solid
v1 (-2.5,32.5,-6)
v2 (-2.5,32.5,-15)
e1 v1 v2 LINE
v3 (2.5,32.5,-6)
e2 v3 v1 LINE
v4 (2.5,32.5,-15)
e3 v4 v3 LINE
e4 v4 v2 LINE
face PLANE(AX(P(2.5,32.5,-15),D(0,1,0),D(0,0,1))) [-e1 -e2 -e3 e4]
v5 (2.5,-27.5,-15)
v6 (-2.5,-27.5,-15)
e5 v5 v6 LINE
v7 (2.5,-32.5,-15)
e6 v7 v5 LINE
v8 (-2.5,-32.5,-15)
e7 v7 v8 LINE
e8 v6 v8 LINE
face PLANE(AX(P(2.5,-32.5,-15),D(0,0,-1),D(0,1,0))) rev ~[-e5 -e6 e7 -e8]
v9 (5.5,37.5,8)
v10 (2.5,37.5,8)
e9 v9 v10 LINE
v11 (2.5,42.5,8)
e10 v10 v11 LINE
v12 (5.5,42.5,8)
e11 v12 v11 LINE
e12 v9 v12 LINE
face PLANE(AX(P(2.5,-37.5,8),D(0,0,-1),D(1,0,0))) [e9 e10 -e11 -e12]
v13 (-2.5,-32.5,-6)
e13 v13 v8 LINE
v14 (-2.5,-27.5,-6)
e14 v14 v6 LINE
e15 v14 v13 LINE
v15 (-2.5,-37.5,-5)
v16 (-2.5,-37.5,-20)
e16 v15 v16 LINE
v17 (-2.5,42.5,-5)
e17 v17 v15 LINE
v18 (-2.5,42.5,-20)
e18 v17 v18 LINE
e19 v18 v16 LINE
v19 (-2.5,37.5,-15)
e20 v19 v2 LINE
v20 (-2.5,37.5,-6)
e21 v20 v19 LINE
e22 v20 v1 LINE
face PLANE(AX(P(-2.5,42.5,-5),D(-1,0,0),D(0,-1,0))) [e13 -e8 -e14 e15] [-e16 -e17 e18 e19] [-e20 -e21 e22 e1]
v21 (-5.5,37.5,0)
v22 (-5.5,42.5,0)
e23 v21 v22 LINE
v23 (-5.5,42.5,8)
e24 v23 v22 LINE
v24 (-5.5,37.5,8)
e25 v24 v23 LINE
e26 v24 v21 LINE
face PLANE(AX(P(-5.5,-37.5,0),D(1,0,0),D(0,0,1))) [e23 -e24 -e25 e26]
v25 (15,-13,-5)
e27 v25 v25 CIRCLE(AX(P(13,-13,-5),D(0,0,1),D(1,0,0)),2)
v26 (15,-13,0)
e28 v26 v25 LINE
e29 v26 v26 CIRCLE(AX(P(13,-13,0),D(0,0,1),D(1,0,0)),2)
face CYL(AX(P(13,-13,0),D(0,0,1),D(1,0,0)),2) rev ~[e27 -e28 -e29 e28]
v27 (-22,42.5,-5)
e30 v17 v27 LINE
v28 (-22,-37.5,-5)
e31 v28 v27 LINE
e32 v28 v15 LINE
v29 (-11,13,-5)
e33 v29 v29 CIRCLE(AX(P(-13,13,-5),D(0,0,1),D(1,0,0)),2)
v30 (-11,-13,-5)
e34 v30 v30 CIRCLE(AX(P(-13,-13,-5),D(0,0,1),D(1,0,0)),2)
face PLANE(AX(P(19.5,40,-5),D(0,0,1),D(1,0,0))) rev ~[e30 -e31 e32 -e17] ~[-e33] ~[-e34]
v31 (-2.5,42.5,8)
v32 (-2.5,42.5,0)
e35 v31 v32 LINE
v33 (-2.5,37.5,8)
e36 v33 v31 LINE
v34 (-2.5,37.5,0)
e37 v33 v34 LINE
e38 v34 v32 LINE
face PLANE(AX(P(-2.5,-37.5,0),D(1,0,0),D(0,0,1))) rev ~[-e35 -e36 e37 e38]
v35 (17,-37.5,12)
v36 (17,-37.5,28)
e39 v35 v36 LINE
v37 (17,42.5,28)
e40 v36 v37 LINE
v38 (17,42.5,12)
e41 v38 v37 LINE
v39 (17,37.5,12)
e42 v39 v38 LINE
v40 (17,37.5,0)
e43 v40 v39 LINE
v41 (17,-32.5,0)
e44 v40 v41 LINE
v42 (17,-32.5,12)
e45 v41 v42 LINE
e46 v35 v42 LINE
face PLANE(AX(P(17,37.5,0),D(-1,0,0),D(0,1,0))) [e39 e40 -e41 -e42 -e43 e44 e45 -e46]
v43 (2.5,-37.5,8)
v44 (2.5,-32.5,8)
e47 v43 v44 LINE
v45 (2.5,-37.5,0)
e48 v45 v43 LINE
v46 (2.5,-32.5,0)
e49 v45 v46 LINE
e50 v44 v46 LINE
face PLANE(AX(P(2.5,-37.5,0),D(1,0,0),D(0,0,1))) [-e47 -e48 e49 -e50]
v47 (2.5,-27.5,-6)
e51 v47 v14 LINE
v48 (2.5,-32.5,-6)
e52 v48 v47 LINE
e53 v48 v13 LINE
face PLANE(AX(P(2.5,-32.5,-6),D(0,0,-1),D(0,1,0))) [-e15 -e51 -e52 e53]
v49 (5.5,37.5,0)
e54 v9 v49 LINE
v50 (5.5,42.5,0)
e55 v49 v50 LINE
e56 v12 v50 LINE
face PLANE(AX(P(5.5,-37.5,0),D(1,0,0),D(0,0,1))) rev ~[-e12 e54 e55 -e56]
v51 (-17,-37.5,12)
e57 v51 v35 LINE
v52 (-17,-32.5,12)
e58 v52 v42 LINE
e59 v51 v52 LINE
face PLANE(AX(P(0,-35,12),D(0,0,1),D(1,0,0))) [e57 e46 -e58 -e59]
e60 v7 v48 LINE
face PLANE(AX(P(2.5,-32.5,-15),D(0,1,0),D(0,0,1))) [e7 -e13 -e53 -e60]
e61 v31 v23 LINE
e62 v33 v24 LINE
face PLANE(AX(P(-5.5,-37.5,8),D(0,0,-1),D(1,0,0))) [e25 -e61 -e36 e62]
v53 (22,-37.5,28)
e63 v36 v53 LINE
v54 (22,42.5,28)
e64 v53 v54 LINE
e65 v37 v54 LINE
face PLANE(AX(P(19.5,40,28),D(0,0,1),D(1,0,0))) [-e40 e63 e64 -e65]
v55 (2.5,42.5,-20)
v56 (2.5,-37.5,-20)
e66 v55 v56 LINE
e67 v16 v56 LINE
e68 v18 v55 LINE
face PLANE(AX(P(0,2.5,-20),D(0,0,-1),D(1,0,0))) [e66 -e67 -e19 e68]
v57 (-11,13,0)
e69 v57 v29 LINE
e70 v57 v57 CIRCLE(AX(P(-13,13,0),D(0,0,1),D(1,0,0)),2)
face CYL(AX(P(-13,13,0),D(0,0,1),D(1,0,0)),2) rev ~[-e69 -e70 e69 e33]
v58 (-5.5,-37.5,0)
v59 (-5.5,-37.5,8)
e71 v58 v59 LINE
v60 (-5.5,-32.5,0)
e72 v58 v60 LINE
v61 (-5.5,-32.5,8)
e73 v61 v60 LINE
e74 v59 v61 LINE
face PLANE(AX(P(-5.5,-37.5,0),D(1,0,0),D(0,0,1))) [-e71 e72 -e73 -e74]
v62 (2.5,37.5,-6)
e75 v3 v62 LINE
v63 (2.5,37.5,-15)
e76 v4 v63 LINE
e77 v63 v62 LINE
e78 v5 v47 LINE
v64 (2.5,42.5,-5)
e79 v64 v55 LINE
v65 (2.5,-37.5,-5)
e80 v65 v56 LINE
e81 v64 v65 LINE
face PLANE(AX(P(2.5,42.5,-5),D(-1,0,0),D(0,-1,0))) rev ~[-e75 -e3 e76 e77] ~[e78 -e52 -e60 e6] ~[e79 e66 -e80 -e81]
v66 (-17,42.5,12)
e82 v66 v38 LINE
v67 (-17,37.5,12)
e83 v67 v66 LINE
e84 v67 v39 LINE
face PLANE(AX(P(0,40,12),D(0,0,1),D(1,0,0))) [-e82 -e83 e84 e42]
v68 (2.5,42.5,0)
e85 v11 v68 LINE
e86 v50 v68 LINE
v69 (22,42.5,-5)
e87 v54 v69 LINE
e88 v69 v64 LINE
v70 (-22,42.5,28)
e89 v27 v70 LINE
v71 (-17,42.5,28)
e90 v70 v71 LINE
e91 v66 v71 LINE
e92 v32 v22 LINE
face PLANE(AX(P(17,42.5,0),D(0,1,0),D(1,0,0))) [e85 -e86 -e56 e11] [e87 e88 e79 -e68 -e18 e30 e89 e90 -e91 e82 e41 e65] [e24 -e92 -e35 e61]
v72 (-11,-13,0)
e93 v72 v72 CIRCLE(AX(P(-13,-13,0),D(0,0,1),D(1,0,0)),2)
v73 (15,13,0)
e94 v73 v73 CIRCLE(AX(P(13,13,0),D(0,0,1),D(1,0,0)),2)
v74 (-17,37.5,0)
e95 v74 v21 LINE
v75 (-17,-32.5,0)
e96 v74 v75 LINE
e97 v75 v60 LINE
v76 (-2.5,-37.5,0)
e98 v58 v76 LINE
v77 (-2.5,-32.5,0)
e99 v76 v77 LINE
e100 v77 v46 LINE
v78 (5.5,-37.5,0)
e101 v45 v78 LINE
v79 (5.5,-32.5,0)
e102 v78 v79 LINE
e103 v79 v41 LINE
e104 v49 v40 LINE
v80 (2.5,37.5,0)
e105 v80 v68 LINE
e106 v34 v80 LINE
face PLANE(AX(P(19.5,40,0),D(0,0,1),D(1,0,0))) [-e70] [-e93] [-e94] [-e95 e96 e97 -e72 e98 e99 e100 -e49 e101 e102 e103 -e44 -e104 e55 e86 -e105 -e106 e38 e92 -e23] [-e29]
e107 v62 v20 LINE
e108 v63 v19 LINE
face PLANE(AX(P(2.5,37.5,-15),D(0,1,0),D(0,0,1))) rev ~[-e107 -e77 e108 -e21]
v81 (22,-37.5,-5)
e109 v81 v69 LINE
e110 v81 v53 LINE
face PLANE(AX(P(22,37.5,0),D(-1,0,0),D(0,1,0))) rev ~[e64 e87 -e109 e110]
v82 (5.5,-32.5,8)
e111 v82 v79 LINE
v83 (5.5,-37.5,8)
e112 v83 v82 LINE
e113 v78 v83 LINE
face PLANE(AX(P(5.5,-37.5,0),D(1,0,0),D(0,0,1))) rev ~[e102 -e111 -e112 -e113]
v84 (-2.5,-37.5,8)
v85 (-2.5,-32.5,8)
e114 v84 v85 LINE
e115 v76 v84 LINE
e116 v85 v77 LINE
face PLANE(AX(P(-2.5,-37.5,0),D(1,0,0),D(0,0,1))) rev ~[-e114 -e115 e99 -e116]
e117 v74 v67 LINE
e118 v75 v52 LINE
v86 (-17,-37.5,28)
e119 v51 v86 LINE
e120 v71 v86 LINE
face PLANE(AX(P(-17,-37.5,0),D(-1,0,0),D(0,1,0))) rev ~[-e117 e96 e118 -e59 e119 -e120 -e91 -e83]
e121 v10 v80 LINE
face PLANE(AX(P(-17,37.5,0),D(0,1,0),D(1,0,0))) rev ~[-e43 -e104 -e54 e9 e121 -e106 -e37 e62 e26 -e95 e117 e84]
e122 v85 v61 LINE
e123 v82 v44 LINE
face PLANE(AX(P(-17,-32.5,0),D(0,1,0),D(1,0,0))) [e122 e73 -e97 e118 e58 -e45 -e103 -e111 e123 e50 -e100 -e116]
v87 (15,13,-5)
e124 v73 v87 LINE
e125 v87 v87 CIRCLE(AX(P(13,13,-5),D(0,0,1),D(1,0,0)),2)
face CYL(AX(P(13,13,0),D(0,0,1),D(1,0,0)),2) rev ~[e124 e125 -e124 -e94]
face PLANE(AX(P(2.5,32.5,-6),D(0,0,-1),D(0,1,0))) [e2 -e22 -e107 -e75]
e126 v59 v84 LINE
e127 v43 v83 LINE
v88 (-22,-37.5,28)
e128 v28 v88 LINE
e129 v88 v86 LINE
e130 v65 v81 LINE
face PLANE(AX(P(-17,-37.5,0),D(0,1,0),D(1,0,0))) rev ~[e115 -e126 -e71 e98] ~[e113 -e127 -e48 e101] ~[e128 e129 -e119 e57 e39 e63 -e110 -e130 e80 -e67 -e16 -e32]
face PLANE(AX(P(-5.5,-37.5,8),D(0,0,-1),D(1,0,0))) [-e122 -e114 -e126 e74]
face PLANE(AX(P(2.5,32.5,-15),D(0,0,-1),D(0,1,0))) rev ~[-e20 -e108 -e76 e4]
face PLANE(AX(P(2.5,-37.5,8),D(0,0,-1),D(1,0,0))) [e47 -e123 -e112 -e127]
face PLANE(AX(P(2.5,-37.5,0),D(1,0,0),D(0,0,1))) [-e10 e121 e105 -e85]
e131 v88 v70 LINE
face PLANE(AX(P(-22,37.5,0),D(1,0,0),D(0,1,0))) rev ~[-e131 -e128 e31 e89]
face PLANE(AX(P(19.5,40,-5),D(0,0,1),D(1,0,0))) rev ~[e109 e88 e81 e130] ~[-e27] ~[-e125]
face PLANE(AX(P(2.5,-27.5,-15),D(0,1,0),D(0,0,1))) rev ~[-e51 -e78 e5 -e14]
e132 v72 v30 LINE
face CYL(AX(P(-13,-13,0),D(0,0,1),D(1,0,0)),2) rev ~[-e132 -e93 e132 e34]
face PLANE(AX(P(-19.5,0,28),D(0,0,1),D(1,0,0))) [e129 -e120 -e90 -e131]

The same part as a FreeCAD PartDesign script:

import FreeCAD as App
import Part
import Sketcher

V = App.Vector

doc = App.newDocument("Part")
body = doc.addObject("PartDesign::Body", "Body")
body.AllowCompound = True

sketch1 = body.newObject("Sketcher::SketchObject", "Sketch")
sketch1.AttachmentSupport = (doc.getObject("XY_Plane"), [""])
sketch1.MapMode = "FlatFace"
sketch1.addGeometry([
    Part.LineSegment(V(-17, 37.5, 0), V(-22, 37.5, 0)),
    Part.LineSegment(V(-22, 37.5, 0), V(-22, -37.5, 0)),
    Part.LineSegment(V(-22, -37.5, 0), V(-17, -37.5, 0)),
    Part.LineSegment(V(-17, -37.5, 0), V(-17, 37.5, 0)),
    Part.LineSegment(V(22, 37.5, 0), V(17, 37.5, 0)),
    Part.LineSegment(V(17, 37.5, 0), V(17, -37.5, 0)),
    Part.LineSegment(V(17, -37.5, 0), V(22, -37.5, 0)),
    Part.LineSegment(V(22, -37.5, 0), V(22, 37.5, 0)),
], False)
sketch1.addConstraint([
    Sketcher.Constraint("Coincident", 0, 2, 1, 1),
    Sketcher.Constraint("Coincident", 1, 2, 2, 1),
    Sketcher.Constraint("Coincident", 2, 2, 3, 1),
    Sketcher.Constraint("Coincident", 3, 2, 0, 1),
    Sketcher.Constraint("Coincident", 4, 2, 5, 1),
    Sketcher.Constraint("Coincident", 5, 2, 6, 1),
    Sketcher.Constraint("Coincident", 6, 2, 7, 1),
    Sketcher.Constraint("Coincident", 7, 2, 4, 1),
    Sketcher.Constraint("Horizontal", 0),
    Sketcher.Constraint("Vertical", 1),
    Sketcher.Constraint("Horizontal", 2),
    Sketcher.Constraint("Vertical", 3),
    Sketcher.Constraint("Horizontal", 4),
    Sketcher.Constraint("Vertical", 5),
    Sketcher.Constraint("Horizontal", 6),
    Sketcher.Constraint("Vertical", 7),
    Sketcher.Constraint("Symmetric", 2, 2, 4, 2, -1, 1),
    Sketcher.Constraint("Symmetric", 0, 2, 6, 2, -1, 1),
    Sketcher.Constraint("Horizontal", 3, 2, 4, 2),
    Sketcher.Constraint("DistanceX", 0, 2, 0, 1, 5.0),
    Sketcher.Constraint("DistanceY", 1, 2, 1, 1, 75.0),
    Sketcher.Constraint("DistanceX", 0, 2, -1, 1, 22.0),
])
pad1 = body.newObject("PartDesign::Pad", "Pad")
pad1.Profile = sketch1
pad1.Length = 28

sketch2 = body.newObject("Sketcher::SketchObject", "Sketch001")
sketch2.AttachmentSupport = (doc.getObject("XY_Plane"), [""])
sketch2.MapMode = "FlatFace"
sketch2.addGeometry([
    Part.LineSegment(V(-22, 37.5, 0), V(-22, -37.5, 0)),
    Part.LineSegment(V(-22, -37.5, 0), V(22, -37.5, 0)),
    Part.LineSegment(V(22, -37.5, 0), V(22, 37.5, 0)),
    Part.LineSegment(V(22, 37.5, 0), V(-22, 37.5, 0)),
    Part.Circle(V(-13, -13, 0), V(0, 0, 1), 2),
    Part.Circle(V(13, -13, 0), V(0, 0, 1), 2),
    Part.Circle(V(-13, 13, 0), V(0, 0, 1), 2),
    Part.Circle(V(13, 13, 0), V(0, 0, 1), 2),
], False)
sketch2.addConstraint([
    Sketcher.Constraint("Coincident", 0, 2, 1, 1),
    Sketcher.Constraint("Coincident", 1, 2, 2, 1),
    Sketcher.Constraint("Coincident", 2, 2, 3, 1),
    Sketcher.Constraint("Coincident", 3, 2, 0, 1),
    Sketcher.Constraint("Vertical", 0),
    Sketcher.Constraint("Horizontal", 1),
    Sketcher.Constraint("Vertical", 2),
    Sketcher.Constraint("Horizontal", 3),
    Sketcher.Constraint("Equal", 4, 5),
    Sketcher.Constraint("Equal", 5, 6),
    Sketcher.Constraint("Equal", 6, 7),
    Sketcher.Constraint("Symmetric", 5, 3, 6, 3, -1, 1),
    Sketcher.Constraint("Symmetric", 4, 3, 7, 3, -1, 1),
    Sketcher.Constraint("Symmetric", 0, 2, 2, 2, -1, 1),
    Sketcher.Constraint("Symmetric", 4, 3, 5, 3, -2),
    Sketcher.Constraint("Diameter", 4, 4.0),
    Sketcher.Constraint("DistanceX", 1, 1, 1, 2, 44.0),
    Sketcher.Constraint("DistanceY", 0, 2, 0, 1, 75.0),
    Sketcher.Constraint("DistanceX", 4, 3, -1, 1, 13.0),
    Sketcher.Constraint("DistanceY", 4, 3, -1, 1, 13.0),
])
pad2 = body.newObject("PartDesign::Pad", "Pad001")
pad2.Profile = sketch2
pad2.Length = 5
pad2.Reversed = True

sketch3 = body.newObject("Sketcher::SketchObject", "Sketch002")
sketch3.AttachmentSupport = (doc.getObject("XY_Plane"), [""])
sketch3.MapMode = "FlatFace"
sketch3.addGeometry([
    Part.LineSegment(V(-17, -32.5, 0), V(-17, -37.5, 0)),
    Part.LineSegment(V(-17, -37.5, 0), V(17, -37.5, 0)),
    Part.LineSegment(V(17, -37.5, 0), V(17, -32.5, 0)),
    Part.LineSegment(V(17, -32.5, 0), V(-17, -32.5, 0)),
], False)
sketch3.addConstraint([
    Sketcher.Constraint("Coincident", 0, 2, 1, 1),
    Sketcher.Constraint("Coincident", 1, 2, 2, 1),
    Sketcher.Constraint("Coincident", 2, 2, 3, 1),
    Sketcher.Constraint("Coincident", 3, 2, 0, 1),
    Sketcher.Constraint("Vertical", 0),
    Sketcher.Constraint("Horizontal", 1),
    Sketcher.Constraint("Vertical", 2),
    Sketcher.Constraint("Horizontal", 3),
    Sketcher.Constraint("DistanceX", 1, 1, 1, 2, 34.0),
    Sketcher.Constraint("DistanceY", 0, 2, 0, 1, 5.0),
    Sketcher.Constraint("DistanceX", 0, 2, -1, 1, 17.0),
    Sketcher.Constraint("DistanceY", 0, 2, -1, 1, 37.5),
])
pad3 = body.newObject("PartDesign::Pad", "Pad002")
pad3.Profile = sketch3
pad3.Length = 12

sketch4 = body.newObject("Sketcher::SketchObject", "Sketch003")
sketch4.AttachmentSupport = (doc.getObject("XY_Plane"), [""])
sketch4.MapMode = "FlatFace"
sketch4.addGeometry([
    Part.LineSegment(V(22, 37.5, 0), V(22, 42.5, 0)),
    Part.LineSegment(V(22, 42.5, 0), V(-22, 42.5, 0)),
    Part.LineSegment(V(-22, 42.5, 0), V(-22, 37.5, 0)),
    Part.LineSegment(V(-22, 37.5, 0), V(22, 37.5, 0)),
], False)
sketch4.addConstraint([
    Sketcher.Constraint("Coincident", 0, 2, 1, 1),
    Sketcher.Constraint("Coincident", 1, 2, 2, 1),
    Sketcher.Constraint("Coincident", 2, 2, 3, 1),
    Sketcher.Constraint("Coincident", 3, 2, 0, 1),
    Sketcher.Constraint("Vertical", 0),
    Sketcher.Constraint("Horizontal", 1),
    Sketcher.Constraint("Vertical", 2),
    Sketcher.Constraint("Horizontal", 3),
    Sketcher.Constraint("DistanceX", 1, 2, 1, 1, 44.0),
    Sketcher.Constraint("DistanceY", 0, 1, 0, 2, 5.0),
    Sketcher.Constraint("DistanceX", -1, 1, 0, 2, 22.0),
    Sketcher.Constraint("DistanceY", -1, 1, 0, 2, 42.5),
])
pad4 = body.newObject("PartDesign::Pad", "Pad003")
pad4.Profile = sketch4
pad4.Length = 5
pad4.Reversed = True

sketch5 = body.newObject("Sketcher::SketchObject", "Sketch004")
sketch5.AttachmentSupport = (doc.getObject("XY_Plane"), [""])
sketch5.MapMode = "FlatFace"
sketch5.addGeometry([
    Part.LineSegment(V(17, 42.5, 0), V(17, 37.5, 0)),
    Part.LineSegment(V(17, 37.5, 0), V(22, 37.5, 0)),
    Part.LineSegment(V(22, 37.5, 0), V(22, 42.5, 0)),
    Part.LineSegment(V(22, 42.5, 0), V(17, 42.5, 0)),
    Part.LineSegment(V(-22, 42.5, 0), V(-22, 37.5, 0)),
    Part.LineSegment(V(-22, 37.5, 0), V(-17, 37.5, 0)),
    Part.LineSegment(V(-17, 37.5, 0), V(-17, 42.5, 0)),
    Part.LineSegment(V(-17, 42.5, 0), V(-22, 42.5, 0)),
], False)
sketch5.addConstraint([
    Sketcher.Constraint("Coincident", 0, 2, 1, 1),
    Sketcher.Constraint("Coincident", 1, 2, 2, 1),
    Sketcher.Constraint("Coincident", 2, 2, 3, 1),
    Sketcher.Constraint("Coincident", 3, 2, 0, 1),
    Sketcher.Constraint("Coincident", 4, 2, 5, 1),
    Sketcher.Constraint("Coincident", 5, 2, 6, 1),
    Sketcher.Constraint("Coincident", 6, 2, 7, 1),
    Sketcher.Constraint("Coincident", 7, 2, 4, 1),
    Sketcher.Constraint("Vertical", 0),
    Sketcher.Constraint("Horizontal", 1),
    Sketcher.Constraint("Vertical", 2),
    Sketcher.Constraint("Horizontal", 3),
    Sketcher.Constraint("Vertical", 4),
    Sketcher.Constraint("Horizontal", 5),
    Sketcher.Constraint("Vertical", 6),
    Sketcher.Constraint("Horizontal", 7),
    Sketcher.Constraint("Symmetric", 1, 2, 4, 2, -2),
    Sketcher.Constraint("Symmetric", 3, 2, 6, 2, -2),
    Sketcher.Constraint("Equal", 7, 0),
    Sketcher.Constraint("DistanceX", 1, 1, 1, 2, 5.0),
    Sketcher.Constraint("DistanceX", -1, 1, 0, 2, 17.0),
    Sketcher.Constraint("DistanceY", -1, 1, 0, 2, 37.5),
])
pad5 = body.newObject("PartDesign::Pad", "Pad004")
pad5.Profile = sketch5
pad5.Length = 28

sketch6 = body.newObject("Sketcher::SketchObject", "Sketch005")
sketch6.AttachmentSupport = (doc.getObject("XY_Plane"), [""])
sketch6.MapMode = "FlatFace"
sketch6.addGeometry([
    Part.LineSegment(V(-17, 42.5, 0), V(-17, 37.5, 0)),
    Part.LineSegment(V(-17, 37.5, 0), V(17, 37.5, 0)),
    Part.LineSegment(V(17, 37.5, 0), V(17, 42.5, 0)),
    Part.LineSegment(V(17, 42.5, 0), V(-17, 42.5, 0)),
], False)
sketch6.addConstraint([
    Sketcher.Constraint("Coincident", 0, 2, 1, 1),
    Sketcher.Constraint("Coincident", 1, 2, 2, 1),
    Sketcher.Constraint("Coincident", 2, 2, 3, 1),
    Sketcher.Constraint("Coincident", 3, 2, 0, 1),
    Sketcher.Constraint("Vertical", 0),
    Sketcher.Constraint("Horizontal", 1),
    Sketcher.Constraint("Vertical", 2),
    Sketcher.Constraint("Horizontal", 3),
    Sketcher.Constraint("DistanceX", 1, 1, 1, 2, 34.0),
    Sketcher.Constraint("DistanceY", 0, 2, 0, 1, 5.0),
    Sketcher.Constraint("DistanceX", 0, 2, -1, 1, 17.0),
    Sketcher.Constraint("DistanceY", -1, 1, 0, 2, 37.5),
])
pad6 = body.newObject("PartDesign::Pad", "Pad005")
pad6.Profile = sketch6
pad6.Length = 12

sketch7 = body.newObject("Sketcher::SketchObject", "Sketch006")
sketch7.AttachmentSupport = (doc.getObject("XY_Plane"), [""])
sketch7.MapMode = "FlatFace"
sketch7.AttachmentOffset = App.Placement(V(0, 0, -5), App.Rotation())
sketch7.addGeometry([
    Part.LineSegment(V(-2.5, -37.5, 0), V(-2.5, 42.5, 0)),
    Part.LineSegment(V(-2.5, 42.5, 0), V(2.5, 42.5, 0)),
    Part.LineSegment(V(2.5, 42.5, 0), V(2.5, -37.5, 0)),
    Part.LineSegment(V(2.5, -37.5, 0), V(-2.5, -37.5, 0)),
], False)
sketch7.addConstraint([
    Sketcher.Constraint("Coincident", 0, 2, 1, 1),
    Sketcher.Constraint("Coincident", 1, 2, 2, 1),
    Sketcher.Constraint("Coincident", 2, 2, 3, 1),
    Sketcher.Constraint("Coincident", 3, 2, 0, 1),
    Sketcher.Constraint("Vertical", 0),
    Sketcher.Constraint("Horizontal", 1),
    Sketcher.Constraint("Vertical", 2),
    Sketcher.Constraint("Horizontal", 3),
    Sketcher.Constraint("DistanceX", 1, 1, 1, 2, 5.0),
    Sketcher.Constraint("DistanceY", 0, 1, 0, 2, 80.0),
    Sketcher.Constraint("DistanceX", 0, 2, -1, 1, 2.5),
    Sketcher.Constraint("DistanceY", -1, 1, 0, 2, 42.5),
])
pad7 = body.newObject("PartDesign::Pad", "Pad006")
pad7.Profile = sketch7
pad7.Length = 15
pad7.Reversed = True

sketch8 = body.newObject("Sketcher::SketchObject", "Sketch007")
sketch8.AttachmentSupport = (doc.getObject("YZ_Plane"), [""])
sketch8.MapMode = "FlatFace"
sketch8.AttachmentOffset = App.Placement(V(0, 0, 2.5), App.Rotation())
sketch8.addGeometry([
    Part.LineSegment(V(-32.5, -6, 0), V(-32.5, -15, 0)),
    Part.LineSegment(V(-32.5, -15, 0), V(-27.5, -15, 0)),
    Part.LineSegment(V(-27.5, -15, 0), V(-27.5, -6, 0)),
    Part.LineSegment(V(-27.5, -6, 0), V(-32.5, -6, 0)),
], False)
sketch8.addConstraint([
    Sketcher.Constraint("Coincident", 0, 2, 1, 1),
    Sketcher.Constraint("Coincident", 1, 2, 2, 1),
    Sketcher.Constraint("Coincident", 2, 2, 3, 1),
    Sketcher.Constraint("Coincident", 3, 2, 0, 1),
    Sketcher.Constraint("Vertical", 0),
    Sketcher.Constraint("Horizontal", 1),
    Sketcher.Constraint("Vertical", 2),
    Sketcher.Constraint("Horizontal", 3),
    Sketcher.Constraint("DistanceX", 1, 1, 1, 2, 5.0),
    Sketcher.Constraint("DistanceY", 0, 2, 0, 1, 9.0),
    Sketcher.Constraint("DistanceY", 0, 2, -1, 1, 15.0),
    Sketcher.Constraint("DistanceX", 0, 2, -1, 1, 32.5),
])
pocket1 = body.newObject("PartDesign::Pocket", "Pocket")
pocket1.Profile = sketch8
pocket1.Type = "ThroughAll"

sketch9 = body.newObject("Sketcher::SketchObject", "Sketch008")
sketch9.AttachmentSupport = (doc.getObject("XZ_Plane"), [""])
sketch9.MapMode = "FlatFace"
sketch9.AttachmentOffset = App.Placement(V(0, 0, 37.5), App.Rotation())
sketch9.addGeometry([
    Part.LineSegment(V(-5.5, 8, 0), V(-5.5, 0, 0)),
    Part.LineSegment(V(-5.5, 0, 0), V(-2.5, 0, 0)),
    Part.LineSegment(V(-2.5, 0, 0), V(-2.5, 8, 0)),
    Part.LineSegment(V(-2.5, 8, 0), V(-5.5, 8, 0)),
    Part.LineSegment(V(2.5, 8, 0), V(2.5, 0, 0)),
    Part.LineSegment(V(2.5, 0, 0), V(5.5, 0, 0)),
    Part.LineSegment(V(5.5, 0, 0), V(5.5, 8, 0)),
    Part.LineSegment(V(5.5, 8, 0), V(2.5, 8, 0)),
], False)
sketch9.addConstraint([
    Sketcher.Constraint("Coincident", 0, 2, 1, 1),
    Sketcher.Constraint("Coincident", 1, 2, 2, 1),
    Sketcher.Constraint("Coincident", 2, 2, 3, 1),
    Sketcher.Constraint("Coincident", 3, 2, 0, 1),
    Sketcher.Constraint("Coincident", 4, 2, 5, 1),
    Sketcher.Constraint("Coincident", 5, 2, 6, 1),
    Sketcher.Constraint("Coincident", 6, 2, 7, 1),
    Sketcher.Constraint("Coincident", 7, 2, 4, 1),
    Sketcher.Constraint("Vertical", 0),
    Sketcher.Constraint("Horizontal", 1),
    Sketcher.Constraint("Vertical", 2),
    Sketcher.Constraint("Horizontal", 3),
    Sketcher.Constraint("Vertical", 4),
    Sketcher.Constraint("Horizontal", 5),
    Sketcher.Constraint("Vertical", 6),
    Sketcher.Constraint("Horizontal", 7),
    Sketcher.Constraint("Symmetric", 1, 2, 4, 2, -1, 1),
    Sketcher.Constraint("Symmetric", 0, 2, 5, 2, -2),
    Sketcher.Constraint("Horizontal", 3, 2, 6, 2),
    Sketcher.Constraint("DistanceX", 1, 1, 1, 2, 3.0),
    Sketcher.Constraint("DistanceY", 0, 2, 0, 1, 8.0),
    Sketcher.Constraint("DistanceX", 1, 2, 4, 2, 5.0),
])
pocket2 = body.newObject("PartDesign::Pocket", "Pocket001")
pocket2.Profile = sketch9
pocket2.Type = "ThroughAll"

sketch10 = body.newObject("Sketcher::SketchObject", "Sketch009")
sketch10.AttachmentSupport = (doc.getObject("YZ_Plane"), [""])
sketch10.MapMode = "FlatFace"
sketch10.AttachmentOffset = App.Placement(V(0, 0, 2.5), App.Rotation())
sketch10.addGeometry([
    Part.LineSegment(V(32.5, -6, 0), V(32.5, -15, 0)),
    Part.LineSegment(V(32.5, -15, 0), V(37.5, -15, 0)),
    Part.LineSegment(V(37.5, -15, 0), V(37.5, -6, 0)),
    Part.LineSegment(V(37.5, -6, 0), V(32.5, -6, 0)),
], False)
sketch10.addConstraint([
    Sketcher.Constraint("Coincident", 0, 2, 1, 1),
    Sketcher.Constraint("Coincident", 1, 2, 2, 1),
    Sketcher.Constraint("Coincident", 2, 2, 3, 1),
    Sketcher.Constraint("Coincident", 3, 2, 0, 1),
    Sketcher.Constraint("Vertical", 0),
    Sketcher.Constraint("Horizontal", 1),
    Sketcher.Constraint("Vertical", 2),
    Sketcher.Constraint("Horizontal", 3),
    Sketcher.Constraint("DistanceX", 1, 1, 1, 2, 5.0),
    Sketcher.Constraint("DistanceY", 0, 2, 0, 1, 9.0),
    Sketcher.Constraint("DistanceY", 0, 2, -1, 1, 15.0),
    Sketcher.Constraint("DistanceX", -1, 1, 0, 2, 32.5),
])
pocket3 = body.newObject("PartDesign::Pocket", "Pocket002")
pocket3.Profile = sketch10
pocket3.Type = "ThroughAll"

doc.recompute()
